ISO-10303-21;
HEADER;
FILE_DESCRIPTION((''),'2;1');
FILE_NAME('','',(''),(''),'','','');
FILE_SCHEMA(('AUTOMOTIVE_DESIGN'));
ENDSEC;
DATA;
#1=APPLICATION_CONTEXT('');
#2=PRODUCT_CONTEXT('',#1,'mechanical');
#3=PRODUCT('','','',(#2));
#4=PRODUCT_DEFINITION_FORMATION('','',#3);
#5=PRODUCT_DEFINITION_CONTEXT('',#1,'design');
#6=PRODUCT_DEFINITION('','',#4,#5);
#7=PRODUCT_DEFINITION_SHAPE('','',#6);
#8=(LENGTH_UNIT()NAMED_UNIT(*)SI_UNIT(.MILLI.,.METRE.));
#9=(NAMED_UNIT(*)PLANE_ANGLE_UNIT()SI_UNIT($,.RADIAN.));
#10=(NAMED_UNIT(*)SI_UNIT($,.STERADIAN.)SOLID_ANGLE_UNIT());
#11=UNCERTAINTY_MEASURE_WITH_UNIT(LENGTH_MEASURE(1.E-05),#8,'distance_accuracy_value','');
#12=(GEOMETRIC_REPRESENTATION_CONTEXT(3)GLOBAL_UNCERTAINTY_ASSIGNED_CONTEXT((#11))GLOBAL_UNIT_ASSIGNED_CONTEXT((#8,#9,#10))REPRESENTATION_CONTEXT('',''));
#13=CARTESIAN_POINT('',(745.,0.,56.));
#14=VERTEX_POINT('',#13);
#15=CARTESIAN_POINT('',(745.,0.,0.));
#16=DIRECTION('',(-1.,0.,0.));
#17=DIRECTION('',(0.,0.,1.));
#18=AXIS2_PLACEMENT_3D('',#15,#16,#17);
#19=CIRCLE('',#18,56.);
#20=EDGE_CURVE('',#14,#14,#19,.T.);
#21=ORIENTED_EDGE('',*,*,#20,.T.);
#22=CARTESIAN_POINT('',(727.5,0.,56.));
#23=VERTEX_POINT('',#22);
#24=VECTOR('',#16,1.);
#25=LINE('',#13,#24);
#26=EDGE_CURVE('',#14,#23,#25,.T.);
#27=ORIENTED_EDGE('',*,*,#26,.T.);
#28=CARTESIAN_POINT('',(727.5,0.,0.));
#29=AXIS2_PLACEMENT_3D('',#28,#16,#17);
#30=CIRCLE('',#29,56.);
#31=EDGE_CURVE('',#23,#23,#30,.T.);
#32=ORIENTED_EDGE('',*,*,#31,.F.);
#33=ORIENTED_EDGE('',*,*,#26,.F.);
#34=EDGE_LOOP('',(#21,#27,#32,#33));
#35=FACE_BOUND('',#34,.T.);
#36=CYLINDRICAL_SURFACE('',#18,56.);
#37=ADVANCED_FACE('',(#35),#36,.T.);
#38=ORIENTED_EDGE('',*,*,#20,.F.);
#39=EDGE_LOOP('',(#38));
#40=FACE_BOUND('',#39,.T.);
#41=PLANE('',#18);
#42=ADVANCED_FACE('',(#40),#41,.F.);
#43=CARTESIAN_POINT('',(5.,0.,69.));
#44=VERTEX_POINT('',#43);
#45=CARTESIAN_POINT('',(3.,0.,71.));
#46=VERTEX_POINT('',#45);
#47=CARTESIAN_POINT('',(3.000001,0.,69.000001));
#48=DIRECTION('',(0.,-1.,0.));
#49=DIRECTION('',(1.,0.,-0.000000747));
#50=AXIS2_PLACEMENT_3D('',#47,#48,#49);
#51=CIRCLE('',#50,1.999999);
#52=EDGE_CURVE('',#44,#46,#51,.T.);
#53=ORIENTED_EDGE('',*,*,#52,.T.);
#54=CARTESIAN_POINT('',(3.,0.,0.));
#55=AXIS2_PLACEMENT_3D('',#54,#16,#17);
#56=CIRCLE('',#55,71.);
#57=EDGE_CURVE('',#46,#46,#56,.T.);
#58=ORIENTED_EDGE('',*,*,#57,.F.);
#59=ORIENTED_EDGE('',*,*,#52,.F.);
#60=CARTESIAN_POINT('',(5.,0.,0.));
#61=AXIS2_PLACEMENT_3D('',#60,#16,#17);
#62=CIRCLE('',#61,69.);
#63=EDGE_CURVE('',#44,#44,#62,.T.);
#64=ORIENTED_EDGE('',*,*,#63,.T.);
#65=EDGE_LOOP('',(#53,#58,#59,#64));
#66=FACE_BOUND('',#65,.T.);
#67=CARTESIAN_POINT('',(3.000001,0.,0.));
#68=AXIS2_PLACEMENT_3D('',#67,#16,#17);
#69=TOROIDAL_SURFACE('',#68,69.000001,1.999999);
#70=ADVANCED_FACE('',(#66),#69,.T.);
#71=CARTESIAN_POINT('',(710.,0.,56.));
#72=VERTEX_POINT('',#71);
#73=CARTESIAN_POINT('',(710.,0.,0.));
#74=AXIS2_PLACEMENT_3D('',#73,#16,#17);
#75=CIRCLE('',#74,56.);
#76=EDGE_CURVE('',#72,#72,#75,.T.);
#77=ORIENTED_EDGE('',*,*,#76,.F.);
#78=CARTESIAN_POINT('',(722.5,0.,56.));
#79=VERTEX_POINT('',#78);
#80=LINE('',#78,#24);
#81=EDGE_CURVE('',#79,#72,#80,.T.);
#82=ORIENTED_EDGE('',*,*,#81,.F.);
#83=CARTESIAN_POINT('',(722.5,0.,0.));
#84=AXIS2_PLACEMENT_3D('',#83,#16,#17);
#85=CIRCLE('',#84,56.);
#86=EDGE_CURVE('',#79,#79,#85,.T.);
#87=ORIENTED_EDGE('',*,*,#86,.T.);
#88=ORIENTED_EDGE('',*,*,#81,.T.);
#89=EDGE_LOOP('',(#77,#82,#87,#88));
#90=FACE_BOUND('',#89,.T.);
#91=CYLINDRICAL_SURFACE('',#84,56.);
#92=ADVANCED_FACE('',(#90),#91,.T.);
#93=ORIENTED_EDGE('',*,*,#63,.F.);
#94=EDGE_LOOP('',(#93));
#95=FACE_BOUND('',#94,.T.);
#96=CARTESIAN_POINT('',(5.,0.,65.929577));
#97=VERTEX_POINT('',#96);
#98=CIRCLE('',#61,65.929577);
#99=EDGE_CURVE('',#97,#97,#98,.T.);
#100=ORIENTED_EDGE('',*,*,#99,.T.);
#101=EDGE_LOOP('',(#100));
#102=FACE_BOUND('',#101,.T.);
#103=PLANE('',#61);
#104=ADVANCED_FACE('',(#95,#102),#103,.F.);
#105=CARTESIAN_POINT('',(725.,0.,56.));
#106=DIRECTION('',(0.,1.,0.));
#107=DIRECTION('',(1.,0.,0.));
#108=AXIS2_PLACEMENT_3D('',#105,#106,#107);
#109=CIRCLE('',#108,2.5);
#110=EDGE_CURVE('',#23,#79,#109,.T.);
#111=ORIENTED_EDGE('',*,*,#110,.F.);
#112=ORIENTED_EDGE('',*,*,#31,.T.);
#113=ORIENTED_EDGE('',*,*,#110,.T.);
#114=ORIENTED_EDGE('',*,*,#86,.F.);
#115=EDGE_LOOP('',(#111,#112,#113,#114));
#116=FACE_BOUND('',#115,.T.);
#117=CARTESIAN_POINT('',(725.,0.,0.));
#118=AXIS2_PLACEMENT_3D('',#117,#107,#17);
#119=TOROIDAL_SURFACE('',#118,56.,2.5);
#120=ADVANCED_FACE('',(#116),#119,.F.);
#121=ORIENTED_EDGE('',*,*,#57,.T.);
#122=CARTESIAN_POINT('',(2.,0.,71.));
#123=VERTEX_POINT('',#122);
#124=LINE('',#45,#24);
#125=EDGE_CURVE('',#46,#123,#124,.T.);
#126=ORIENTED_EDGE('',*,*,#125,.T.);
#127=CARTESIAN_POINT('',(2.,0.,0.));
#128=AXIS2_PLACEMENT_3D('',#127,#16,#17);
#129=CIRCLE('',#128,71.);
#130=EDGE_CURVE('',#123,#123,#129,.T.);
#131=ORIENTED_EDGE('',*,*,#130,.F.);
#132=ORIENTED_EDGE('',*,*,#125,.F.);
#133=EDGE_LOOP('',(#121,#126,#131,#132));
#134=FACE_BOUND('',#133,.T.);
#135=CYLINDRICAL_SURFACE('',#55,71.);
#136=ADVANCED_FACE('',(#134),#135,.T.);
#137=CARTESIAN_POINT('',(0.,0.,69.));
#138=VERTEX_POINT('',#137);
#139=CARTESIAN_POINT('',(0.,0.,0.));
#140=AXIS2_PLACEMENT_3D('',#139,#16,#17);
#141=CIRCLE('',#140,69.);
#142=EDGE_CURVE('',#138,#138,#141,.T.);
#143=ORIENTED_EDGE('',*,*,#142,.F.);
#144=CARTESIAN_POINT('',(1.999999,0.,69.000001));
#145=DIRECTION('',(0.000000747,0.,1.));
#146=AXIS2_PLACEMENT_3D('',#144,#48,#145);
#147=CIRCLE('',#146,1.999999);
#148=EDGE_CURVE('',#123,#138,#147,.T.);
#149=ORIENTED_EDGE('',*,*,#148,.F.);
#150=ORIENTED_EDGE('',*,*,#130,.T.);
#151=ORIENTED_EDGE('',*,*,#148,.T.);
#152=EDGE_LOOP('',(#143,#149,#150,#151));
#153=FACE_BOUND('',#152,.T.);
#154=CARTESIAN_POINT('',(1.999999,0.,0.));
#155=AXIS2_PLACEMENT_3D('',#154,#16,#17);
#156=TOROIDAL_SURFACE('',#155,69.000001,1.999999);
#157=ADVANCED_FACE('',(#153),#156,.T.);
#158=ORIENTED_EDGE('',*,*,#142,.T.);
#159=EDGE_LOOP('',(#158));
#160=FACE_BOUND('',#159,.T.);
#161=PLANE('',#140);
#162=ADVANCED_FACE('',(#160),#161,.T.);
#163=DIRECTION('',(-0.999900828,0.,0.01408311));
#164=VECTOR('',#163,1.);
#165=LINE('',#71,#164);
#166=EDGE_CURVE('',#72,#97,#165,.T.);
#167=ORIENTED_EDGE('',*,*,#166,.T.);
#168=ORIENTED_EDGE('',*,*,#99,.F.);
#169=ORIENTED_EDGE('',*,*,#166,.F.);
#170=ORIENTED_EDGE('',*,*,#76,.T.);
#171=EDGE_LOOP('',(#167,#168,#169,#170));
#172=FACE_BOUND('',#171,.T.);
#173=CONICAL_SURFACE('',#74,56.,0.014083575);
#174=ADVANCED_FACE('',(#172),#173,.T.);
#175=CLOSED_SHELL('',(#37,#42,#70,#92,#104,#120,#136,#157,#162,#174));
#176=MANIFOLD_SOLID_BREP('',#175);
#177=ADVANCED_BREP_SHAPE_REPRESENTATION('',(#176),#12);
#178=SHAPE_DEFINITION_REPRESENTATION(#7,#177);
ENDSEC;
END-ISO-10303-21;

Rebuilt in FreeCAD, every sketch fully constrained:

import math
import FreeCAD as App
import Part
import Sketcher
Q = App.Units.Quantity

doc = App.newDocument("Part")
body = doc.addObject("PartDesign::Body", "Body")

# Sketch on XZ plane
sketch1 = body.newObject("Sketcher::SketchObject", "Sketch")
sketch1.AttachmentSupport = (doc.getObject("XZ_Plane"), [""])
sketch1.MapMode = "FlatFace"
sketch1.addGeometry(Part.LineSegment(App.Vector(0, 0, 0), App.Vector(745, 0, 0)), False)
sketch1.addGeometry(Part.LineSegment(App.Vector(745, 0, 0), App.Vector(745, 56, 0)), False)
sketch1.addGeometry(Part.LineSegment(App.Vector(745, 56, 0), App.Vector(727.5, 56, 0)), False)
sketch1.addGeometry(Part.ArcOfCircle(Part.Circle(App.Vector(725, 56, 0), App.Vector(0, 0, 1), 2.5), math.radians(180), math.radians(360)), False)
sketch1.addGeometry(Part.LineSegment(App.Vector(722.5, 56, 0), App.Vector(710, 56, 0)), False)
sketch1.addGeometry(Part.LineSegment(App.Vector(710, 56, 0), App.Vector(5, 65.9, 0)), False)
sketch1.addGeometry(Part.LineSegment(App.Vector(5, 65.9, 0), App.Vector(5, 69, 0)), False)
sketch1.addGeometry(Part.ArcOfCircle(Part.Circle(App.Vector(3, 69, 0), App.Vector(0, 0, 1), 2), math.radians(0), math.radians(90)), False)
sketch1.addGeometry(Part.LineSegment(App.Vector(3, 71, 0), App.Vector(2, 71, 0)), False)
sketch1.addGeometry(Part.ArcOfCircle(Part.Circle(App.Vector(2, 69, 0), App.Vector(0, 0, 1), 2), math.radians(90), math.radians(180)), False)
sketch1.addGeometry(Part.LineSegment(App.Vector(0, 69, 0), App.Vector(0, 0, 0)), False)
sketch1.addConstraint(Sketcher.Constraint("Coincident", 0, 2, 1, 1))
sketch1.addConstraint(Sketcher.Constraint("Coincident", 1, 2, 2, 1))
sketch1.addConstraint(Sketcher.Constraint("Coincident", 2, 2, 3, 2))
sketch1.addConstraint(Sketcher.Constraint("Coincident", 3, 1, 4, 1))
sketch1.addConstraint(Sketcher.Constraint("Coincident", 4, 2, 5, 1))
sketch1.addConstraint(Sketcher.Constraint("Coincident", 5, 2, 6, 1))
sketch1.addConstraint(Sketcher.Constraint("Tangent", 6, 2, 7, 1))
sketch1.addConstraint(Sketcher.Constraint("Tangent", 7, 2, 8, 1))
sketch1.addConstraint(Sketcher.Constraint("Tangent", 8, 2, 9, 1))
sketch1.addConstraint(Sketcher.Constraint("Tangent", 9, 2, 10, 1))
sketch1.addConstraint(Sketcher.Constraint("Coincident", 10, 2, 0, 1))
sketch1.addConstraint(Sketcher.Constraint("Horizontal", 0))
sketch1.addConstraint(Sketcher.Constraint("Vertical", 1))
sketch1.addConstraint(Sketcher.Constraint("Horizontal", 2))
sketch1.addConstraint(Sketcher.Constraint("Horizontal", 4))
sketch1.addConstraint(Sketcher.Constraint("Vertical", 6))
sketch1.addConstraint(Sketcher.Constraint("Horizontal", 8))
sketch1.addConstraint(Sketcher.Constraint("Vertical", 10))
sketch1.addConstraint(Sketcher.Constraint("Coincident", 10, 2, -1, 1))
sketch1.addConstraint(Sketcher.Constraint("Equal", 7, 9))
sketch1.addConstraint(Sketcher.Constraint("Horizontal", 3, 3, 1, 2))
sketch1.addConstraint(Sketcher.Constraint("Horizontal", 2, 2, 3, 1))
sketch1.addConstraint(Sketcher.Constraint("Radius", 7, Q("1.999999 mm")))
sketch1.addConstraint(Sketcher.Constraint("Radius", 3, Q("2.5 mm")))
sketch1.addConstraint(Sketcher.Constraint("DistanceX", 0, 1, 0, 2, Q("745 mm")))
sketch1.addConstraint(Sketcher.Constraint("DistanceX", 8, 2, 8, 1, Q("1 mm")))
sketch1.addConstraint(Sketcher.Constraint("DistanceY", 1, 1, 1, 2, Q("56 mm")))
sketch1.addConstraint(Sketcher.Constraint("DistanceY", 10, 2, 10, 1, Q("69 mm")))
sketch1.addConstraint(Sketcher.Constraint("DistanceX", 2, 2, 2, 1, Q("17.5 mm")))
sketch1.addConstraint(Sketcher.Constraint("DistanceX", 4, 2, 4, 1, Q("12.5 mm")))
sketch1.addConstraint(Sketcher.Constraint("DistanceY", 6, 1, 6, 2, Q("3.070423 mm")))
revolution = body.newObject("PartDesign::Revolution", "Revolution")
revolution.Profile = sketch1
revolution.ReferenceAxis = (sketch1, ["H_Axis"])
revolution.Angle = 360

doc.recompute()
